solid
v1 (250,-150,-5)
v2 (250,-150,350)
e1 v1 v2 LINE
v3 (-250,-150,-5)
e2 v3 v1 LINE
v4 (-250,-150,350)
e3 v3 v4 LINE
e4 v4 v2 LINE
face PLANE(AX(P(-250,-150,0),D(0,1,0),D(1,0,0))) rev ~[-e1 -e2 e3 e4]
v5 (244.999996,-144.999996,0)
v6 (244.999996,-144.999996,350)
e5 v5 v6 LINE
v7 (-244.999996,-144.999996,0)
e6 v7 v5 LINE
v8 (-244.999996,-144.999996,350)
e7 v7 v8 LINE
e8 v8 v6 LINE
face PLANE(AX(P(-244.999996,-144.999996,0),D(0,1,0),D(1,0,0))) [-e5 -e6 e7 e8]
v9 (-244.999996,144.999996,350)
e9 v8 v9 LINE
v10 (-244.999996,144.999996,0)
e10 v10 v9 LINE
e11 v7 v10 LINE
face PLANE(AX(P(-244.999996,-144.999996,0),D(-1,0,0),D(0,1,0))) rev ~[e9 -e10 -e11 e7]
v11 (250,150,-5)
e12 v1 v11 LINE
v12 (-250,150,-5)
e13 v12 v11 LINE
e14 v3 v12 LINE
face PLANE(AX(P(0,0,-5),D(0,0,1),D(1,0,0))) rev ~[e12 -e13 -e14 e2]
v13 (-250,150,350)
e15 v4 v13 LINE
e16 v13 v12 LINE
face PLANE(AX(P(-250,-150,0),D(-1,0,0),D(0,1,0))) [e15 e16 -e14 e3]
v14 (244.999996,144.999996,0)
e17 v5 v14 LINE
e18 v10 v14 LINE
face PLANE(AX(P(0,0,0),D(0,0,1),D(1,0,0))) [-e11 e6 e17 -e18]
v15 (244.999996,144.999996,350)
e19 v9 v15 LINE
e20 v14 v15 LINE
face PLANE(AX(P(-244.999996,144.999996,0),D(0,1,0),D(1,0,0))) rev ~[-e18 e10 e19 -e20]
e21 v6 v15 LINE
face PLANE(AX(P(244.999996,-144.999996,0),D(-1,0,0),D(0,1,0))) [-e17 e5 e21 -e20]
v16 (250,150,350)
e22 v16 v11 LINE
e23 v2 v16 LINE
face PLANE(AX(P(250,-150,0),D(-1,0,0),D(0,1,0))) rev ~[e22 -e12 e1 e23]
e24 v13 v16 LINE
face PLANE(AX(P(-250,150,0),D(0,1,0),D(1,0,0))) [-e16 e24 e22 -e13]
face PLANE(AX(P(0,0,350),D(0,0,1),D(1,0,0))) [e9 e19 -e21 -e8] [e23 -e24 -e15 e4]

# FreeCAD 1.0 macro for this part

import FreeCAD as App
import Part
import Sketcher
Q = App.Units.Quantity

doc = App.newDocument("Part")
body = doc.addObject("PartDesign::Body", "Body")

# Sketch on XY plane
sketch1 = doc.addObject("Sketcher::SketchObject", "Sketch")
body.addObject(sketch1)
sketch1.AttachmentSupport = (doc.XY_Plane, [""])
sketch1.MapMode = "FlatFace"
sketch1.addGeometry([
    Part.LineSegment(App.Vector(-250, 150, 0), App.Vector(-250, -150, 0)),
    Part.LineSegment(App.Vector(-250, -150, 0), App.Vector(250, -150, 0)),
    Part.LineSegment(App.Vector(250, -150, 0), App.Vector(250, 150, 0)),
    Part.LineSegment(App.Vector(250, 150, 0), App.Vector(-250, 150, 0)),
], False)
sketch1.addConstraint([
    Sketcher.Constraint("Coincident", 0, 2, 1, 1),
    Sketcher.Constraint("Coincident", 1, 2, 2, 1),
    Sketcher.Constraint("Coincident", 2, 2, 3, 1),
    Sketcher.Constraint("Coincident", 3, 2, 0, 1),
    Sketcher.Constraint("Vertical", 0),
    Sketcher.Constraint("Horizontal", 1),
    Sketcher.Constraint("Vertical", 2),
    Sketcher.Constraint("Horizontal", 3),
    Sketcher.Constraint("Symmetric", 0, 2, 2, 2, -1, 1),
    Sketcher.Constraint("DistanceX", 1, 1, 1, 2, Q("500 mm")),
    Sketcher.Constraint("DistanceY", 0, 2, 0, 1, Q("300 mm")),
])
pad1 = doc.addObject("PartDesign::Pad", "Pad")
body.addObject(pad1)
pad1.Profile = sketch1
pad1.Length = 5
pad1.Reversed = True

# Sketch on XY plane
sketch2 = doc.addObject("Sketcher::SketchObject", "Sketch001")
body.addObject(sketch2)
sketch2.AttachmentSupport = (doc.XY_Plane, [""])
sketch2.MapMode = "FlatFace"
sketch2.addGeometry([
    Part.LineSegment(App.Vector(-250, 150, 0), App.Vector(-250, -150, 0)),  # 0
    Part.LineSegment(App.Vector(-250, -150, 0), App.Vector(250, -150, 0)),  # 1
    Part.LineSegment(App.Vector(250, -150, 0), App.Vector(250, 150, 0)),  # 2
    Part.LineSegment(App.Vector(250, 150, 0), App.Vector(-250, 150, 0)),  # 3
    Part.LineSegment(App.Vector(244.999996, -144.999996, 0), App.Vector(-244.999996, -144.999996, 0)),  # 4
    Part.LineSegment(App.Vector(-244.999996, -144.999996, 0), App.Vector(-244.999996, 144.999996, 0)),  # 5
    Part.LineSegment(App.Vector(-244.999996, 144.999996, 0), App.Vector(244.999996, 144.999996, 0)),  # 6
    Part.LineSegment(App.Vector(244.999996, 144.999996, 0), App.Vector(244.999996, -144.999996, 0)),  # 7
], False)
sketch2.addConstraint([
    Sketcher.Constraint("Coincident", 0, 2, 1, 1),
    Sketcher.Constraint("Coincident", 1, 2, 2, 1),
    Sketcher.Constraint("Coincident", 2, 2, 3, 1),
    Sketcher.Constraint("Coincident", 3, 2, 0, 1),
    Sketcher.Constraint("Coincident", 4, 2, 5, 1),
    Sketcher.Constraint("Coincident", 5, 2, 6, 1),
    Sketcher.Constraint("Coincident", 6, 2, 7, 1),
    Sketcher.Constraint("Coincident", 7, 2, 4, 1),
    Sketcher.Constraint("Vertical", 0),
    Sketcher.Constraint("Horizontal", 1),
    Sketcher.Constraint("Vertical", 2),
    Sketcher.Constraint("Horizontal", 3),
    Sketcher.Constraint("Horizontal", 4),
    Sketcher.Constraint("Vertical", 5),
    Sketcher.Constraint("Horizontal", 6),
    Sketcher.Constraint("Vertical", 7),
    Sketcher.Constraint("Symmetric", 0, 2, 2, 2, -1, 1),
    Sketcher.Constraint("Symmetric", 4, 2, 6, 2, -1, 1),
    Sketcher.Constraint("DistanceX", 1, 1, 1, 2, Q("500 mm")),
    Sketcher.Constraint("DistanceY", 0, 2, 0, 1, Q("300 mm")),
    Sketcher.Constraint("DistanceX", 4, 2, 4, 1, Q("489.999992 mm")),
    Sketcher.Constraint("DistanceY", 5, 1, 5, 2, Q("289.999992 mm")),
])
pad2 = doc.addObject("PartDesign::Pad", "Pad001")
body.addObject(pad2)
pad2.Profile = sketch2
pad2.Length = 350

doc.recompute()
